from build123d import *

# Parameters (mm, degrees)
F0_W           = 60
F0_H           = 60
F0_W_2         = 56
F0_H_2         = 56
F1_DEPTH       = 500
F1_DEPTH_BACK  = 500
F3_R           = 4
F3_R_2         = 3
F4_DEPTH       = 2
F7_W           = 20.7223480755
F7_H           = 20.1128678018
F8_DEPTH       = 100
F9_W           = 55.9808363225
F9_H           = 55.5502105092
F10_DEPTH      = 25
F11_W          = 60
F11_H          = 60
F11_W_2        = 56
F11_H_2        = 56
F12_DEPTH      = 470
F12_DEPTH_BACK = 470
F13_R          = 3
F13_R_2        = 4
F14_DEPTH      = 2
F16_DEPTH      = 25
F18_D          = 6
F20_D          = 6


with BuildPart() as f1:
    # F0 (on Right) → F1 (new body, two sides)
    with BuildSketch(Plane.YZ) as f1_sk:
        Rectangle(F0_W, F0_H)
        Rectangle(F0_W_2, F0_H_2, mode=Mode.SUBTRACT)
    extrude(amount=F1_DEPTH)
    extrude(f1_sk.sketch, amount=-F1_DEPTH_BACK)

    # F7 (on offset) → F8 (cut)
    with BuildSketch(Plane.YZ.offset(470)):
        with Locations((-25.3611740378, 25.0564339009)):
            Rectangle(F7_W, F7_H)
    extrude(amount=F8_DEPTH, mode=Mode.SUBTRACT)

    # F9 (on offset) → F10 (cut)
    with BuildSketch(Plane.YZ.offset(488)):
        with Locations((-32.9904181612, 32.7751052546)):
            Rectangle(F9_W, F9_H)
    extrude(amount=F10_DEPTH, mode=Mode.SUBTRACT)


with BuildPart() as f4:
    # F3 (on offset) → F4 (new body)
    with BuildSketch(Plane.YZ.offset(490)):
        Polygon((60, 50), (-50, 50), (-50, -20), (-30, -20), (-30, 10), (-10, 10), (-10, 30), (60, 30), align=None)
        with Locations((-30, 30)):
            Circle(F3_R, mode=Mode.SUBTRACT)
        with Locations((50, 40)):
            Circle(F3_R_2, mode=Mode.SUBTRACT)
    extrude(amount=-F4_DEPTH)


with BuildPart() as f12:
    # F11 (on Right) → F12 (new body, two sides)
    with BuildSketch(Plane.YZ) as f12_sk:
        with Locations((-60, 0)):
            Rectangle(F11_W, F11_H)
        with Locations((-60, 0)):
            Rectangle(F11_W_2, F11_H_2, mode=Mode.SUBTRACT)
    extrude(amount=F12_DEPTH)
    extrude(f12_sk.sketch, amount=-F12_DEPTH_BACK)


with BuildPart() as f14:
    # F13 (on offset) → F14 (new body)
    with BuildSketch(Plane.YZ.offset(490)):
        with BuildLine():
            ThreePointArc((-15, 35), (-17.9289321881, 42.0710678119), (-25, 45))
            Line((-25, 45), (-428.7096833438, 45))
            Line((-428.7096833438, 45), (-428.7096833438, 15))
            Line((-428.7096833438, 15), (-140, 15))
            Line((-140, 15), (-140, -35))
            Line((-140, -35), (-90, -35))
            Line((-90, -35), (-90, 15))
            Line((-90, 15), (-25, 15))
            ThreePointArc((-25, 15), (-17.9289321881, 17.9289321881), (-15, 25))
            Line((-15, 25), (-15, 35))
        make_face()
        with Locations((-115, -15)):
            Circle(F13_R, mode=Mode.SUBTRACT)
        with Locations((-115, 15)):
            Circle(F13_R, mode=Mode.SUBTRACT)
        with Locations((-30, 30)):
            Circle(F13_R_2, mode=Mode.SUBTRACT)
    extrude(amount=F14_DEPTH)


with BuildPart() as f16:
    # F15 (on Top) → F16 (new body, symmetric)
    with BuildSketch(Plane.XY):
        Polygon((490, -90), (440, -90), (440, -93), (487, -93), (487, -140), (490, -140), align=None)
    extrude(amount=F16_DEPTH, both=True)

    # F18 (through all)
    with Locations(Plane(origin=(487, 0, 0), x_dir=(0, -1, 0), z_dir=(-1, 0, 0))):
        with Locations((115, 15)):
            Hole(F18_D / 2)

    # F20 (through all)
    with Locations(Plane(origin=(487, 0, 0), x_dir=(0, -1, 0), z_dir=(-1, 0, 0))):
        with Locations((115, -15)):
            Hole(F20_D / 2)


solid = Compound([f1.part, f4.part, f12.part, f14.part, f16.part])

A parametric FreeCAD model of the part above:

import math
import FreeCAD as App
import Part
import Sketcher

doc = App.newDocument("Part")
body = doc.addObject("PartDesign::Body", "Body")

# Sketch on YZ plane
sketch1 = body.newObject("Sketcher::SketchObject", "Sketch")
sketch1.AttachmentSupport = (doc.getObject("YZ_Plane"), [""])
sketch1.MapMode = "FlatFace"
sketch1.addGeometry(Part.LineSegment(App.Vector(-30, 30, 0), App.Vector(-30, -30, 0)), False)
sketch1.addGeometry(Part.LineSegment(App.Vector(-30, -30, 0), App.Vector(30, -30, 0)), False)
sketch1.addGeometry(Part.LineSegment(App.Vector(30, -30, 0), App.Vector(30, 30, 0)), False)
sketch1.addGeometry(Part.LineSegment(App.Vector(30, 30, 0), App.Vector(-30, 30, 0)), False)
sketch1.addGeometry(Part.LineSegment(App.Vector(28, -28, 0), App.Vector(-28, -28, 0)), False)
sketch1.addGeometry(Part.LineSegment(App.Vector(-28, -28, 0), App.Vector(-28, 28, 0)), False)
sketch1.addGeometry(Part.LineSegment(App.Vector(-28, 28, 0), App.Vector(28, 28, 0)), False)
sketch1.addGeometry(Part.LineSegment(App.Vector(28, 28, 0), App.Vector(28, -28, 0)), False)
sketch1.addConstraint(Sketcher.Constraint("Coincident", 0, 2, 1, 1))
sketch1.addConstraint(Sketcher.Constraint("Coincident", 1, 2, 2, 1))
sketch1.addConstraint(Sketcher.Constraint("Coincident", 2, 2, 3, 1))
sketch1.addConstraint(Sketcher.Constraint("Coincident", 3, 2, 0, 1))
sketch1.addConstraint(Sketcher.Constraint("Coincident", 4, 2, 5, 1))
sketch1.addConstraint(Sketcher.Constraint("Coincident", 5, 2, 6, 1))
sketch1.addConstraint(Sketcher.Constraint("Coincident", 6, 2, 7, 1))
sketch1.addConstraint(Sketcher.Constraint("Coincident", 7, 2, 4, 1))
sketch1.addConstraint(Sketcher.Constraint("Vertical", 0))
sketch1.addConstraint(Sketcher.Constraint("Horizontal", 1))
sketch1.addConstraint(Sketcher.Constraint("Vertical", 2))
sketch1.addConstraint(Sketcher.Constraint("Horizontal", 3))
sketch1.addConstraint(Sketcher.Constraint("Horizontal", 4))
sketch1.addConstraint(Sketcher.Constraint("Vertical", 5))
sketch1.addConstraint(Sketcher.Constraint("Horizontal", 6))
sketch1.addConstraint(Sketcher.Constraint("Vertical", 7))
sketch1.addConstraint(Sketcher.Constraint("Symmetric", 0, 2, 2, 2, -1, 1))
sketch1.addConstraint(Sketcher.Constraint("Symmetric", 4, 2, 6, 2, -1, 1))
sketch1.addConstraint(Sketcher.Constraint("Equal", 3, 0))
sketch1.addConstraint(Sketcher.Constraint("Equal", 6, 5))
sketch1.addConstraint(Sketcher.Constraint("DistanceX", 1, 1, 1, 2, 60.0))
sketch1.addConstraint(Sketcher.Constraint("DistanceX", 4, 2, 4, 1, 56.0))
pad1 = body.newObject("PartDesign::Pad", "Pad")
pad1.Profile = sketch1
pad1.Type = "TwoLengths"
pad1.Length = 500
pad1.Length2 = 500

# Sketch on YZ plane
sketch2 = body.newObject("Sketcher::SketchObject", "Sketch001")
sketch2.AttachmentSupport = (doc.getObject("YZ_Plane"), [""])
sketch2.MapMode = "FlatFace"
sketch2.AttachmentOffset = App.Placement(App.Vector(0, 0, 470), App.Rotation())
sketch2.addGeometry(Part.LineSegment(App.Vector(-35.722348, 35.112868, 0), App.Vector(-35.722348, 15, 0)), False)
sketch2.addGeometry(Part.LineSegment(App.Vector(-35.722348, 15, 0), App.Vector(-15, 15, 0)), False)
sketch2.addGeometry(Part.LineSegment(App.Vector(-15, 15, 0), App.Vector(-15, 35.112868, 0)), False)
sketch2.addGeometry(Part.LineSegment(App.Vector(-15, 35.112868, 0), App.Vector(-35.722348, 35.112868, 0)), False)
sketch2.addConstraint(Sketcher.Constraint("Coincident", 0, 2, 1, 1))
sketch2.addConstraint(Sketcher.Constraint("Coincident", 1, 2, 2, 1))
sketch2.addConstraint(Sketcher.Constraint("Coincident", 2, 2, 3, 1))
sketch2.addConstraint(Sketcher.Constraint("Coincident", 3, 2, 0, 1))
sketch2.addConstraint(Sketcher.Constraint("Vertical", 0))
sketch2.addConstraint(Sketcher.Constraint("Horizontal", 1))
sketch2.addConstraint(Sketcher.Constraint("Vertical", 2))
sketch2.addConstraint(Sketcher.Constraint("Horizontal", 3))
sketch2.addConstraint(Sketcher.Constraint("DistanceY", -1, 1, 0, 2, 15.0))
sketch2.addConstraint(Sketcher.Constraint("DistanceX", 1, 2, -1, 1, 15.0))
sketch2.addConstraint(Sketcher.Constraint("DistanceX", 1, 1, 1, 2, 20.722348))
sketch2.addConstraint(Sketcher.Constraint("DistanceY", 0, 2, 0, 1, 20.112868))
pocket1 = body.newObject("PartDesign::Pocket", "Pocket")
pocket1.Profile = sketch2
pocket1.Length = 100
pocket1.Reversed = True

# Sketch on YZ plane
sketch3 = body.newObject("Sketcher::SketchObject", "Sketch002")
sketch3.AttachmentSupport = (doc.getObject("YZ_Plane"), [""])
sketch3.MapMode = "FlatFace"
sketch3.AttachmentOffset = App.Placement(App.Vector(0, 0, 488), App.Rotation())
sketch3.addGeometry(Part.LineSegment(App.Vector(-60.980836, 60.550211, 0), App.Vector(-60.980836, 5, 0)), False)
sketch3.addGeometry(Part.LineSegment(App.Vector(-60.980836, 5, 0), App.Vector(-5, 5, 0)), False)
sketch3.addGeometry(Part.LineSegment(App.Vector(-5, 5, 0), App.Vector(-5, 60.550211, 0)), False)
sketch3.addGeometry(Part.LineSegment(App.Vector(-5, 60.550211, 0), App.Vector(-60.980836, 60.550211, 0)), False)
sketch3.addConstraint(Sketcher.Constraint("Coincident", 0, 2, 1, 1))
sketch3.addConstraint(Sketcher.Constraint("Coincident", 1, 2, 2, 1))
sketch3.addConstraint(Sketcher.Constraint("Coincident", 2, 2, 3, 1))
sketch3.addConstraint(Sketcher.Constraint("Coincident", 3, 2, 0, 1))
sketch3.addConstraint(Sketcher.Constraint("Vertical", 0))
sketch3.addConstraint(Sketcher.Constraint("Horizontal", 1))
sketch3.addConstraint(Sketcher.Constraint("Vertical", 2))
sketch3.addConstraint(Sketcher.Constraint("Horizontal", 3))
sketch3.addConstraint(Sketcher.Constraint("DistanceY", -1, 1, 0, 2, 5.0))
sketch3.addConstraint(Sketcher.Constraint("DistanceX", 1, 2, -1, 1, 5.0))
sketch3.addConstraint(Sketcher.Constraint("DistanceY", 0, 2, 0, 1, 55.550211))
sketch3.addConstraint(Sketcher.Constraint("DistanceX", 1, 1, 1, 2, 55.980836))
pocket2 = body.newObject("PartDesign::Pocket", "Pocket001")
pocket2.Profile = sketch3
pocket2.Length = 25
pocket2.Reversed = True
body2 = doc.addObject("PartDesign::Body", "Body001")

# Sketch on YZ plane
sketch4 = body2.newObject("Sketcher::SketchObject", "Sketch003")
sketch4.AttachmentSupport = (doc.getObject("YZ_Plane001"), [""])
sketch4.MapMode = "FlatFace"
sketch4.AttachmentOffset = App.Placement(App.Vector(0, 0, 490), App.Rotation())
sketch4.addGeometry(Part.LineSegment(App.Vector(60, 50, 0), App.Vector(-50, 50, 0)), False)
sketch4.addGeometry(Part.LineSegment(App.Vector(-50, 50, 0), App.Vector(-50, -20, 0)), False)
sketch4.addGeometry(Part.LineSegment(App.Vector(-50, -20, 0), App.Vector(-30, -20, 0)), False)
sketch4.addGeometry(Part.LineSegment(App.Vector(-30, -20, 0), App.Vector(-30, 10, 0)), False)
sketch4.addGeometry(Part.LineSegment(App.Vector(-30, 10, 0), App.Vector(-10, 10, 0)), False)
sketch4.addGeometry(Part.LineSegment(App.Vector(-10, 10, 0), App.Vector(-10, 30, 0)), False)
sketch4.addGeometry(Part.LineSegment(App.Vector(-10, 30, 0), App.Vector(60, 30, 0)), False)
sketch4.addGeometry(Part.LineSegment(App.Vector(60, 30, 0), App.Vector(60, 50, 0)), False)
sketch4.addGeometry(Part.Circle(App.Vector(-30, 30, 0), App.Vector(0, 0, 1), 4), False)
sketch4.addGeometry(Part.Circle(App.Vector(50, 40, 0), App.Vector(0, 0, 1), 3), False)
sketch4.addConstraint(Sketcher.Constraint("Coincident", 0, 2, 1, 1))
sketch4.addConstraint(Sketcher.Constraint("Coincident", 1, 2, 2, 1))
sketch4.addConstraint(Sketcher.Constraint("Coincident", 2, 2, 3, 1))
sketch4.addConstraint(Sketcher.Constraint("Coincident", 3, 2, 4, 1))
sketch4.addConstraint(Sketcher.Constraint("Coincident", 4, 2, 5, 1))
sketch4.addConstraint(Sketcher.Constraint("Coincident", 5, 2, 6, 1))
sketch4.addConstraint(Sketcher.Constraint("Coincident", 6, 2, 7, 1))
sketch4.addConstraint(Sketcher.Constraint("Coincident", 7, 2, 0, 1))
sketch4.addConstraint(Sketcher.Constraint("Horizontal", 0))
sketch4.addConstraint(Sketcher.Constraint("Vertical", 1))
sketch4.addConstraint(Sketcher.Constraint("Horizontal", 2))
sketch4.addConstraint(Sketcher.Constraint("Vertical", 3))
sketch4.addConstraint(Sketcher.Constraint("Horizontal", 4))
sketch4.addConstraint(Sketcher.Constraint("Vertical", 5))
sketch4.addConstraint(Sketcher.Constraint("Horizontal", 6))
sketch4.addConstraint(Sketcher.Constraint("Vertical", 7))
sketch4.addConstraint(Sketcher.Constraint("Horizontal", 8, 3, 5, 2))
sketch4.addConstraint(Sketcher.Constraint("Vertical", 8, 3, 2, 2))
sketch4.addConstraint(Sketcher.Constraint("Equal", 2, 4))
sketch4.addConstraint(Sketcher.Constraint("Equal", 6, 1))
sketch4.addConstraint(Sketcher.Constraint("Equal", 4, 5))
sketch4.addConstraint(Sketcher.Constraint("Equal", 5, 7))
sketch4.addConstraint(Sketcher.Constraint("Diameter", 8, 8.0))
sketch4.addConstraint(Sketcher.Constraint("Diameter", 9, 6.0))
sketch4.addConstraint(Sketcher.Constraint("DistanceX", 0, 2, 0, 1, 110.0))
sketch4.addConstraint(Sketcher.Constraint("DistanceX", 2, 1, 2, 2, 20.0))
sketch4.addConstraint(Sketcher.Constraint("DistanceX", 8, 3, -1, 1, 30.0))
sketch4.addConstraint(Sketcher.Constraint("DistanceY", -1, 1, 8, 3, 30.0))
sketch4.addConstraint(Sketcher.Constraint("DistanceX", -1, 1, 9, 3, 50.0))
sketch4.addConstraint(Sketcher.Constraint("DistanceY", -1, 1, 9, 3, 40.0))
pad2 = body2.newObject("PartDesign::Pad", "Pad001")
pad2.Profile = sketch4
pad2.Length = 2
pad2.Reversed = True
body3 = doc.addObject("PartDesign::Body", "Body002")

# Sketch on YZ plane
sketch5 = body3.newObject("Sketcher::SketchObject", "Sketch004")
sketch5.AttachmentSupport = (doc.getObject("YZ_Plane002"), [""])
sketch5.MapMode = "FlatFace"
sketch5.addGeometry(Part.LineSegment(App.Vector(-90, 30, 0), App.Vector(-90, -30, 0)), False)
sketch5.addGeometry(Part.LineSegment(App.Vector(-90, -30, 0), App.Vector(-30, -30, 0)), False)
sketch5.addGeometry(Part.LineSegment(App.Vector(-30, -30, 0), App.Vector(-30, 30, 0)), False)
sketch5.addGeometry(Part.LineSegment(App.Vector(-30, 30, 0), App.Vector(-90, 30, 0)), False)
sketch5.addGeometry(Part.LineSegment(App.Vector(-32, -28, 0), App.Vector(-88, -28, 0)), False)
sketch5.addGeometry(Part.LineSegment(App.Vector(-88, -28, 0), App.Vector(-88, 28, 0)), False)
sketch5.addGeometry(Part.LineSegment(App.Vector(-88, 28, 0), App.Vector(-32, 28, 0)), False)
sketch5.addGeometry(Part.LineSegment(App.Vector(-32, 28, 0), App.Vector(-32, -28, 0)), False)
sketch5.addConstraint(Sketcher.Constraint("Coincident", 0, 2, 1, 1))
sketch5.addConstraint(Sketcher.Constraint("Coincident", 1, 2, 2, 1))
sketch5.addConstraint(Sketcher.Constraint("Coincident", 2, 2, 3, 1))
sketch5.addConstraint(Sketcher.Constraint("Coincident", 3, 2, 0, 1))
sketch5.addConstraint(Sketcher.Constraint("Coincident", 4, 2, 5, 1))
sketch5.addConstraint(Sketcher.Constraint("Coincident", 5, 2, 6, 1))
sketch5.addConstraint(Sketcher.Constraint("Coincident", 6, 2, 7, 1))
sketch5.addConstraint(Sketcher.Constraint("Coincident", 7, 2, 4, 1))
sketch5.addConstraint(Sketcher.Constraint("Vertical", 0))
sketch5.addConstraint(Sketcher.Constraint("Horizontal", 1))
sketch5.addConstraint(Sketcher.Constraint("Vertical", 2))
sketch5.addConstraint(Sketcher.Constraint("Horizontal", 3))
sketch5.addConstraint(Sketcher.Constraint("Horizontal", 4))
sketch5.addConstraint(Sketcher.Constraint("Vertical", 5))
sketch5.addConstraint(Sketcher.Constraint("Horizontal", 6))
sketch5.addConstraint(Sketcher.Constraint("Vertical", 7))
sketch5.addConstraint(Sketcher.Constraint("Equal", 3, 0))
sketch5.addConstraint(Sketcher.Constraint("Equal", 6, 5))
sketch5.addConstraint(Sketcher.Constraint("DistanceX", 1, 1, 1, 2, 60.0))
sketch5.addConstraint(Sketcher.Constraint("DistanceX", 4, 2, 4, 1, 56.0))
sketch5.addConstraint(Sketcher.Constraint("DistanceX", 0, 2, -1, 1, 90.0))
sketch5.addConstraint(Sketcher.Constraint("DistanceY", 0, 2, -1, 1, 30.0))
sketch5.addConstraint(Sketcher.Constraint("DistanceX", 4, 2, -1, 1, 88.0))
sketch5.addConstraint(Sketcher.Constraint("DistanceY", 4, 2, -1, 1, 28.0))
pad3 = body3.newObject("PartDesign::Pad", "Pad002")
pad3.Profile = sketch5
pad3.Type = "TwoLengths"
pad3.Length = 470
pad3.Length2 = 470
body4 = doc.addObject("PartDesign::Body", "Body003")

# Sketch on YZ plane
sketch6 = body4.newObject("Sketcher::SketchObject", "Sketch005")
sketch6.AttachmentSupport = (doc.getObject("YZ_Plane003"), [""])
sketch6.MapMode = "FlatFace"
sketch6.AttachmentOffset = App.Placement(App.Vector(0, 0, 490), App.Rotation())
sketch6.addGeometry(Part.ArcOfCircle(Part.Circle(App.Vector(-25, 35, 0), App.Vector(0, 0, 1), 10), math.radians(0), math.radians(90)), False)
sketch6.addGeometry(Part.LineSegment(App.Vector(-25, 45, 0), App.Vector(-428.709683, 45, 0)), False)
sketch6.addGeometry(Part.LineSegment(App.Vector(-428.709683, 45, 0), App.Vector(-428.709683, 15, 0)), False)
sketch6.addGeometry(Part.LineSegment(App.Vector(-428.709683, 15, 0), App.Vector(-140, 15, 0)), False)
sketch6.addGeometry(Part.LineSegment(App.Vector(-140, 15, 0), App.Vector(-140, -35, 0)), False)
sketch6.addGeometry(Part.LineSegment(App.Vector(-140, -35, 0), App.Vector(-90, -35, 0)), False)
sketch6.addGeometry(Part.LineSegment(App.Vector(-90, -35, 0), App.Vector(-90, 15, 0)), False)
sketch6.addGeometry(Part.LineSegment(App.Vector(-90, 15, 0), App.Vector(-25, 15, 0)), False)
sketch6.addGeometry(Part.ArcOfCircle(Part.Circle(App.Vector(-25, 25, 0), App.Vector(0, 0, 1), 10), math.radians(-90), math.radians(0)), False)
sketch6.addGeometry(Part.LineSegment(App.Vector(-15, 25, 0), App.Vector(-15, 35, 0)), False)
sketch6.addGeometry(Part.Circle(App.Vector(-115, -15, 0), App.Vector(0, 0, 1), 3), False)
sketch6.addGeometry(Part.Circle(App.Vector(-115, 15, 0), App.Vector(0, 0, 1), 3), False)
sketch6.addGeometry(Part.Circle(App.Vector(-30, 30, 0), App.Vector(0, 0, 1), 4), False)
sketch6.addConstraint(Sketcher.Constraint("Tangent", 0, 2, 1, 1))
sketch6.addConstraint(Sketcher.Constraint("Coincident", 1, 2, 2, 1))
sketch6.addConstraint(Sketcher.Constraint("Coincident", 2, 2, 3, 1))
sketch6.addConstraint(Sketcher.Constraint("Coincident", 3, 2, 4, 1))
sketch6.addConstraint(Sketcher.Constraint("Coincident", 4, 2, 5, 1))
sketch6.addConstraint(Sketcher.Constraint("Coincident", 5, 2, 6, 1))
sketch6.addConstraint(Sketcher.Constraint("Coincident", 6, 2, 7, 1))
sketch6.addConstraint(Sketcher.Constraint("Tangent", 7, 2, 8, 1))
sketch6.addConstraint(Sketcher.Constraint("Tangent", 8, 2, 9, 1))
sketch6.addConstraint(Sketcher.Constraint("Tangent", 9, 2, 0, 1))
sketch6.addConstraint(Sketcher.Constraint("Horizontal", 1))
sketch6.addConstraint(Sketcher.Constraint("Vertical", 2))
sketch6.addConstraint(Sketcher.Constraint("Horizontal", 3))
sketch6.addConstraint(Sketcher.Constraint("Vertical", 4))
sketch6.addConstraint(Sketcher.Constraint("Horizontal", 5))
sketch6.addConstraint(Sketcher.Constraint("Vertical", 6))
sketch6.addConstraint(Sketcher.Constraint("Horizontal", 7))
sketch6.addConstraint(Sketcher.Constraint("Vertical", 9))
sketch6.addConstraint(Sketcher.Constraint("Equal", 0, 8))
sketch6.addConstraint(Sketcher.Constraint("Equal", 10, 11))
sketch6.addConstraint(Sketcher.Constraint("Symmetric", 10, 3, 11, 3, -1))
sketch6.addConstraint(Sketcher.Constraint("Horizontal", 11, 3, 2, 2))
sketch6.addConstraint(Sketcher.Constraint("Horizontal", 3, 2, 6, 2))
sketch6.addConstraint(Sketcher.Constraint("Equal", 5, 4))
sketch6.addConstraint(Sketcher.Constraint("Diameter", 10, 6.0))
sketch6.addConstraint(Sketcher.Constraint("Diameter", 12, 8.0))
sketch6.addConstraint(Sketcher.Constraint("Radius", 0, 10.0))
sketch6.addConstraint(Sketcher.Constraint("DistanceX", 5, 1, 5, 2, 50.0))
sketch6.addConstraint(Sketcher.Constraint("DistanceX", 7, 1, 7, 2, 65.0))
sketch6.addConstraint(Sketcher.Constraint("DistanceY", 2, 2, 2, 1, 30.0))
sketch6.addConstraint(Sketcher.Constraint("DistanceX", 0, 3, -1, 1, 25.0))
sketch6.addConstraint(Sketcher.Constraint("DistanceY", -1, 1, 0, 3, 35.0))
sketch6.addConstraint(Sketcher.Constraint("DistanceX", 10, 3, -1, 1, 115.0))
sketch6.addConstraint(Sketcher.Constraint("DistanceX", 12, 3, -1, 1, 30.0))
sketch6.addConstraint(Sketcher.Constraint("DistanceY", -1, 1, 12, 3, 30.0))
sketch6.addConstraint(Sketcher.Constraint("DistanceX", 1, 2, 1, 1, 403.709683))
pad4 = body4.newObject("PartDesign::Pad", "Pad003")
pad4.Profile = sketch6
pad4.Length = 2
body5 = doc.addObject("PartDesign::Body", "Body004")

# Sketch on XY plane
sketch7 = body5.newObject("Sketcher::SketchObject", "Sketch006")
sketch7.AttachmentSupport = (doc.getObject("XY_Plane004"), [""])
sketch7.MapMode = "FlatFace"
sketch7.addGeometry(Part.LineSegment(App.Vector(490, -90, 0), App.Vector(440, -90, 0)), False)
sketch7.addGeometry(Part.LineSegment(App.Vector(440, -90, 0), App.Vector(440, -93, 0)), False)
sketch7.addGeometry(Part.LineSegment(App.Vector(440, -93, 0), App.Vector(487, -93, 0)), False)
sketch7.addGeometry(Part.LineSegment(App.Vector(487, -93, 0), App.Vector(487, -140, 0)), False)
sketch7.addGeometry(Part.LineSegment(App.Vector(487, -140, 0), App.Vector(490, -140, 0)), False)
sketch7.addGeometry(Part.LineSegment(App.Vector(490, -140, 0), App.Vector(490, -90, 0)), False)
sketch7.addConstraint(Sketcher.Constraint("Coincident", 0, 2, 1, 1))
sketch7.addConstraint(Sketcher.Constraint("Coincident", 1, 2, 2, 1))
sketch7.addConstraint(Sketcher.Constraint("Coincident", 2, 2, 3, 1))
sketch7.addConstraint(Sketcher.Constraint("Coincident", 3, 2, 4, 1))
sketch7.addConstraint(Sketcher.Constraint("Coincident", 4, 2, 5, 1))
sketch7.addConstraint(Sketcher.Constraint("Coincident", 5, 2, 0, 1))
sketch7.addConstraint(Sketcher.Constraint("Horizontal", 0))
sketch7.addConstraint(Sketcher.Constraint("Vertical", 1))
sketch7.addConstraint(Sketcher.Constraint("Horizontal", 2))
sketch7.addConstraint(Sketcher.Constraint("Vertical", 3))
sketch7.addConstraint(Sketcher.Constraint("Horizontal", 4))
sketch7.addConstraint(Sketcher.Constraint("Vertical", 5))
sketch7.addConstraint(Sketcher.Constraint("Equal", 4, 1))
sketch7.addConstraint(Sketcher.Constraint("Equal", 2, 3))
sketch7.addConstraint(Sketcher.Constraint("DistanceX", 0, 2, 0, 1, 50.0))
sketch7.addConstraint(Sketcher.Constraint("DistanceX", 2, 1, 2, 2, 47.0))
sketch7.addConstraint(Sketcher.Constraint("DistanceX", -1, 1, 0, 2, 440.0))
sketch7.addConstraint(Sketcher.Constraint("DistanceY", 0, 2, -1, 1, 90.0))
pad5 = body5.newObject("PartDesign::Pad", "Pad004")
pad5.Profile = sketch7
pad5.Length = 50
pad5.Midplane = True

# Sketch on YZ plane
sketch8 = body5.newObject("Sketcher::SketchObject", "Sketch007")
sketch8.AttachmentSupport = (doc.getObject("YZ_Plane004"), [""])
sketch8.MapMode = "FlatFace"
sketch8.AttachmentOffset = App.Placement(App.Vector(0, 0, 487), App.Rotation())
sketch8.addGeometry(Part.Circle(App.Vector(-115, 15, 0), App.Vector(0, 0, 1), 3), False)
sketch8.addConstraint(Sketcher.Constraint("Diameter", 0, 6.0))
sketch8.addConstraint(Sketcher.Constraint("DistanceX", 0, 3, -1, 1, 115.0))
sketch8.addConstraint(Sketcher.Constraint("DistanceY", -1, 1, 0, 3, 15.0))
doc.recompute()
hole = body5.newObject("PartDesign::Hole", "Hole")
hole.Profile = sketch8
hole.ThreadType = "None"
hole.Diameter = 6
hole.DepthType = "ThroughAll"
hole.Reversed = True

# Sketch on YZ plane
sketch9 = body5.newObject("Sketcher::SketchObject", "Sketch008")
sketch9.AttachmentSupport = (doc.getObject("YZ_Plane004"), [""])
sketch9.MapMode = "FlatFace"
sketch9.AttachmentOffset = App.Placement(App.Vector(0, 0, 487), App.Rotation())
sketch9.addGeometry(Part.Circle(App.Vector(-115, -15, 0), App.Vector(0, 0, 1), 3), False)
sketch9.addConstraint(Sketcher.Constraint("Diameter", 0, 6.0))
sketch9.addConstraint(Sketcher.Constraint("DistanceX", 0, 3, -1, 1, 115.0))
sketch9.addConstraint(Sketcher.Constraint("DistanceY", 0, 3, -1, 1, 15.0))
doc.recompute()
hole2 = body5.newObject("PartDesign::Hole", "Hole001")
hole2.Profile = sketch9
hole2.ThreadType = "None"
hole2.Diameter = 6
hole2.DepthType = "ThroughAll"
hole2.Reversed = True

doc.recompute()
